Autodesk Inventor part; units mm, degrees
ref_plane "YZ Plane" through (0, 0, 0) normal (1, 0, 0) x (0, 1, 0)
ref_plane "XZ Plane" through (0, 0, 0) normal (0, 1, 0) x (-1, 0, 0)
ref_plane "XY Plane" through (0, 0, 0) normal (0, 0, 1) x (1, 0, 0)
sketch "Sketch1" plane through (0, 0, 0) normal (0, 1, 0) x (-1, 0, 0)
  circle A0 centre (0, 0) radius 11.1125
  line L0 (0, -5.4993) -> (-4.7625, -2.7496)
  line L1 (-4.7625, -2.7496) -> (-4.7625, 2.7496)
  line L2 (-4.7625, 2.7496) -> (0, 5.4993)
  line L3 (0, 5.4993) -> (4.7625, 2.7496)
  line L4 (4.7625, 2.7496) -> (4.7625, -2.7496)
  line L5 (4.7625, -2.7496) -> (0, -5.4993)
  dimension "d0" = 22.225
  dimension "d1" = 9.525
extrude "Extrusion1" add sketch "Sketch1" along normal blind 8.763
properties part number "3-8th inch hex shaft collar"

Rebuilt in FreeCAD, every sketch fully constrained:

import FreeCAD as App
import Part
import Sketcher

V = App.Vector
Q = App.Units.Quantity


def add_polygon(sketch, points):
    """Adds a closed chain of lines whose ends are joined by coincident constraints."""
    first, n = sketch.GeometryCount, len(points)
    for a, b in zip(points, points[1:] + points[:1]):
        sketch.addGeometry(Part.LineSegment(App.Vector(*a, 0), App.Vector(*b, 0)), False)
    for i in range(n):
        sketch.addConstraint(Sketcher.Constraint("Coincident", first + i, 2, first + (i + 1) % n, 1))

doc = App.newDocument("Part")
body = doc.addObject("PartDesign::Body", "Body")

# Sketch on XZ plane
sketch1 = body.newObject("Sketcher::SketchObject", "Sketch")
sketch1.AttachmentSupport = (doc.getObject("XZ_Plane"), [""])
sketch1.MapMode = "FlatFace"
sketch1.addGeometry(Part.Circle(V(0, 0, 0), V(0, 0, 1), 11.1125), False)  # 0
add_polygon(sketch1, [(-4.7625, -2.7496), (0, -5.4993), (4.7625, -2.7496), (4.7625, 2.7496), (0, 5.4993), (-4.7625, 2.7496)])  # lines 1-6
sketch1.addConstraint(Sketcher.Constraint("Vertical", 3))
sketch1.addConstraint(Sketcher.Constraint("Vertical", 6))
sketch1.addConstraint(Sketcher.Constraint("Coincident", 0, 3, -1, 1))
sketch1.addConstraint(Sketcher.Constraint("Symmetric", 1, 2, 4, 2, -1, 1))
sketch1.addConstraint(Sketcher.Constraint("Symmetric", 2, 2, 5, 2, -1, 1))
sketch1.addConstraint(Sketcher.Constraint("PointOnObject", 1, 2, -2))
sketch1.addConstraint(Sketcher.Constraint("Parallel", 1, 4))
sketch1.addConstraint(Sketcher.Constraint("Horizontal", 3, 2, 5, 2))
sketch1.addConstraint(Sketcher.Constraint("Diameter", 0, Q("0.875 in")))
sketch1.addConstraint(Sketcher.Constraint("Angle", 1, Q("-30.0006 deg")))
sketch1.addConstraint(Sketcher.Constraint("DistanceX", 5, 2, 3, 2, Q("0.375 in")))
sketch1.addConstraint(Sketcher.Constraint("DistanceY", 3, 1, 3, 2, Q("0.2165 in")))
pad1 = body.newObject("PartDesign::Pad", "Pad")
pad1.Profile = sketch1
pad1.Length = Q("0.345 in")
pad1.Reversed = True

doc.recompute()
